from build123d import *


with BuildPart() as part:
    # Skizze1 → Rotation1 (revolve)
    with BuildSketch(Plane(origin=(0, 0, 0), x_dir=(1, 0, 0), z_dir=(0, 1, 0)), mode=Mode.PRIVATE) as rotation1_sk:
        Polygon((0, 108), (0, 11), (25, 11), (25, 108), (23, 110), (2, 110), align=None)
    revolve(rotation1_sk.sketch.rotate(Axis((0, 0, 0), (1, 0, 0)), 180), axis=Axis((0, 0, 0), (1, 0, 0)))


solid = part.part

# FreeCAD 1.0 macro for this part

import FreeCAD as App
import Part
import Sketcher

V = App.Vector


def add_polygon(sketch, points):
    """Adds a closed chain of lines whose ends are joined by coincident constraints."""
    first, n = sketch.GeometryCount, len(points)
    for a, b in zip(points, points[1:] + points[:1]):
        sketch.addGeometry(Part.LineSegment(App.Vector(*a, 0), App.Vector(*b, 0)), False)
    for i in range(n):
        sketch.addConstraint(Sketcher.Constraint("Coincident", first + i, 2, first + (i + 1) % n, 1))

doc = App.newDocument("Part")
body = doc.addObject("PartDesign::Body", "Body")

sketch1 = doc.addObject("Sketcher::SketchObject", "Sketch")
body.addObject(sketch1)
sketch1.AttachmentSupport = (doc.XZ_Plane, [""])
sketch1.MapMode = "FlatFace"
add_polygon(sketch1, [(0, -108), (0, -11), (25, -11), (25, -108), (23, -110), (2, -110)])
sketch1.addConstraint(Sketcher.Constraint("Vertical", 0))
sketch1.addConstraint(Sketcher.Constraint("Horizontal", 1))
sketch1.addConstraint(Sketcher.Constraint("Vertical", 2))
sketch1.addConstraint(Sketcher.Constraint("Horizontal", 4))
sketch1.addConstraint(Sketcher.Constraint("PointOnObject", 0, 2, -2))
sketch1.addConstraint(Sketcher.Constraint("Perpendicular", 3, 5))
sketch1.addConstraint(Sketcher.Constraint("Horizontal", 2, 2, 5, 2))
sketch1.addConstraint(Sketcher.Constraint("Equal", 3, 5))
sketch1.addConstraint(Sketcher.Constraint("DistanceX", 1, 1, 1, 2, 25.0))
sketch1.addConstraint(Sketcher.Constraint("DistanceX", 4, 2, 4, 1, 21.0))
sketch1.addConstraint(Sketcher.Constraint("DistanceY", 0, 1, 0, 2, 97.0))
sketch1.addConstraint(Sketcher.Constraint("DistanceY", 0, 2, -1, 1, 11.0))
revolution = doc.addObject("PartDesign::Revolution", "Revolution")
body.addObject(revolution)
revolution.Profile = sketch1
revolution.ReferenceAxis = (sketch1, ["H_Axis"])
revolution.Angle = 360

doc.recompute()
